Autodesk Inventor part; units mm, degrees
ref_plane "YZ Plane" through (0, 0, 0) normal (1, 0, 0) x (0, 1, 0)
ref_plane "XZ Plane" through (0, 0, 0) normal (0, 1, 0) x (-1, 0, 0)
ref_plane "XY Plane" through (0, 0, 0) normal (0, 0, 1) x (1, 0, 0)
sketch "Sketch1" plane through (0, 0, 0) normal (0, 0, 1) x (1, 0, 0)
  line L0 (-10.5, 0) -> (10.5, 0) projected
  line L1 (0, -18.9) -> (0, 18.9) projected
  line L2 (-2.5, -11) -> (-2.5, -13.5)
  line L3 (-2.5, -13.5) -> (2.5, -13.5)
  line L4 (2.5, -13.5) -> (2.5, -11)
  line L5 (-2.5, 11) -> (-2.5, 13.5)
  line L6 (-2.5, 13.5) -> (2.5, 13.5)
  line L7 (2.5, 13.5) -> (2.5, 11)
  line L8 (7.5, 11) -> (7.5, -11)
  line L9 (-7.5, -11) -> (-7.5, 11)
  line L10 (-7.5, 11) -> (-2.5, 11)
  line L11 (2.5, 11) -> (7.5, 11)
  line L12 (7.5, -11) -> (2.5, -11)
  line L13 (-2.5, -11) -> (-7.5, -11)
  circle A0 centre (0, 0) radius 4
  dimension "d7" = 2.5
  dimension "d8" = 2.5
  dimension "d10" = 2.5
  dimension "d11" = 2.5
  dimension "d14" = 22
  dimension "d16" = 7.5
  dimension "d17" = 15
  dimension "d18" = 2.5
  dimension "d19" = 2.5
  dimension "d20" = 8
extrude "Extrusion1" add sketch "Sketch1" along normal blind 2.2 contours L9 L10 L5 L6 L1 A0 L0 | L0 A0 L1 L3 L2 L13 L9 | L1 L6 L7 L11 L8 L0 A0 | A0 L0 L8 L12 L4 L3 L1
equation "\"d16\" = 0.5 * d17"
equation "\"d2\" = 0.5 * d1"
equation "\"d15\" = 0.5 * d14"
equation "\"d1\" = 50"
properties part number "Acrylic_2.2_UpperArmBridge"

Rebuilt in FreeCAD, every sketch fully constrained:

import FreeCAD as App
import Part
import Sketcher
from FreeCAD import Vector
Q = App.Units.Quantity

doc = App.newDocument("Part")
body = doc.addObject("PartDesign::Body", "Body")

sketch1 = body.newObject("Sketcher::SketchObject", "Sketch")
sketch1.AttachmentSupport = (doc.getObject("XY_Plane"), [""])
sketch1.MapMode = "FlatFace"
sketch1.addGeometry([
    Part.LineSegment(Vector(-7.5, 11, 0), Vector(-7.5, -11, 0)),
    Part.LineSegment(Vector(-7.5, -11, 0), Vector(-2.5, -11, 0)),
    Part.LineSegment(Vector(-2.5, -11, 0), Vector(-2.5, -13.5, 0)),
    Part.LineSegment(Vector(-2.5, -13.5, 0), Vector(2.5, -13.5, 0)),
    Part.LineSegment(Vector(2.5, -13.5, 0), Vector(2.5, -11, 0)),
    Part.LineSegment(Vector(2.5, -11, 0), Vector(7.5, -11, 0)),
    Part.LineSegment(Vector(7.5, -11, 0), Vector(7.5, 11, 0)),
    Part.LineSegment(Vector(7.5, 11, 0), Vector(2.5, 11, 0)),
    Part.LineSegment(Vector(2.5, 11, 0), Vector(2.5, 13.5, 0)),
    Part.LineSegment(Vector(2.5, 13.5, 0), Vector(-2.5, 13.5, 0)),
    Part.LineSegment(Vector(-2.5, 13.5, 0), Vector(-2.5, 11, 0)),
    Part.LineSegment(Vector(-2.5, 11, 0), Vector(-7.5, 11, 0)),
    Part.Circle(Vector(0, 0, 0), Vector(0, 0, 1), 4),
], False)
sketch1.addConstraint([
    Sketcher.Constraint("Coincident", 0, 2, 1, 1),
    Sketcher.Constraint("Coincident", 1, 2, 2, 1),
    Sketcher.Constraint("Coincident", 2, 2, 3, 1),
    Sketcher.Constraint("Coincident", 3, 2, 4, 1),
    Sketcher.Constraint("Coincident", 4, 2, 5, 1),
    Sketcher.Constraint("Coincident", 5, 2, 6, 1),
    Sketcher.Constraint("Coincident", 6, 2, 7, 1),
    Sketcher.Constraint("Coincident", 7, 2, 8, 1),
    Sketcher.Constraint("Coincident", 8, 2, 9, 1),
    Sketcher.Constraint("Coincident", 9, 2, 10, 1),
    Sketcher.Constraint("Coincident", 10, 2, 11, 1),
    Sketcher.Constraint("Coincident", 11, 2, 0, 1),
    Sketcher.Constraint("Vertical", 0),
    Sketcher.Constraint("Horizontal", 1),
    Sketcher.Constraint("Vertical", 2),
    Sketcher.Constraint("Horizontal", 3),
    Sketcher.Constraint("Vertical", 4),
    Sketcher.Constraint("Horizontal", 5),
    Sketcher.Constraint("Vertical", 6),
    Sketcher.Constraint("Horizontal", 7),
    Sketcher.Constraint("Vertical", 8),
    Sketcher.Constraint("Horizontal", 9),
    Sketcher.Constraint("Vertical", 10),
    Sketcher.Constraint("Horizontal", 11),
    Sketcher.Constraint("Coincident", 12, 3, -1, 1),
    Sketcher.Constraint("Symmetric", 0, 2, 6, 2, -1, 1),
    Sketcher.Constraint("Symmetric", 2, 2, 8, 2, -1, 1),
    Sketcher.Constraint("Symmetric", 4, 2, 10, 2, -1, 1),
    Sketcher.Constraint("Symmetric", 1, 2, 4, 2, -2),
    Sketcher.Constraint("Equal", 1, 3),
    Sketcher.Constraint("Diameter", 12, Q("8 mm")),
    Sketcher.Constraint("DistanceY", 0, 2, 0, 1, Q("22 mm")),
    Sketcher.Constraint("DistanceY", 2, 2, 2, 1, Q("2.5 mm")),
    Sketcher.Constraint("DistanceX", 0, 2, -1, 1, Q("7.5 mm")),
])
pad1 = body.newObject("PartDesign::Pad", "Pad")
pad1.Profile = sketch1
pad1.Length = 2.2

doc.recompute()
